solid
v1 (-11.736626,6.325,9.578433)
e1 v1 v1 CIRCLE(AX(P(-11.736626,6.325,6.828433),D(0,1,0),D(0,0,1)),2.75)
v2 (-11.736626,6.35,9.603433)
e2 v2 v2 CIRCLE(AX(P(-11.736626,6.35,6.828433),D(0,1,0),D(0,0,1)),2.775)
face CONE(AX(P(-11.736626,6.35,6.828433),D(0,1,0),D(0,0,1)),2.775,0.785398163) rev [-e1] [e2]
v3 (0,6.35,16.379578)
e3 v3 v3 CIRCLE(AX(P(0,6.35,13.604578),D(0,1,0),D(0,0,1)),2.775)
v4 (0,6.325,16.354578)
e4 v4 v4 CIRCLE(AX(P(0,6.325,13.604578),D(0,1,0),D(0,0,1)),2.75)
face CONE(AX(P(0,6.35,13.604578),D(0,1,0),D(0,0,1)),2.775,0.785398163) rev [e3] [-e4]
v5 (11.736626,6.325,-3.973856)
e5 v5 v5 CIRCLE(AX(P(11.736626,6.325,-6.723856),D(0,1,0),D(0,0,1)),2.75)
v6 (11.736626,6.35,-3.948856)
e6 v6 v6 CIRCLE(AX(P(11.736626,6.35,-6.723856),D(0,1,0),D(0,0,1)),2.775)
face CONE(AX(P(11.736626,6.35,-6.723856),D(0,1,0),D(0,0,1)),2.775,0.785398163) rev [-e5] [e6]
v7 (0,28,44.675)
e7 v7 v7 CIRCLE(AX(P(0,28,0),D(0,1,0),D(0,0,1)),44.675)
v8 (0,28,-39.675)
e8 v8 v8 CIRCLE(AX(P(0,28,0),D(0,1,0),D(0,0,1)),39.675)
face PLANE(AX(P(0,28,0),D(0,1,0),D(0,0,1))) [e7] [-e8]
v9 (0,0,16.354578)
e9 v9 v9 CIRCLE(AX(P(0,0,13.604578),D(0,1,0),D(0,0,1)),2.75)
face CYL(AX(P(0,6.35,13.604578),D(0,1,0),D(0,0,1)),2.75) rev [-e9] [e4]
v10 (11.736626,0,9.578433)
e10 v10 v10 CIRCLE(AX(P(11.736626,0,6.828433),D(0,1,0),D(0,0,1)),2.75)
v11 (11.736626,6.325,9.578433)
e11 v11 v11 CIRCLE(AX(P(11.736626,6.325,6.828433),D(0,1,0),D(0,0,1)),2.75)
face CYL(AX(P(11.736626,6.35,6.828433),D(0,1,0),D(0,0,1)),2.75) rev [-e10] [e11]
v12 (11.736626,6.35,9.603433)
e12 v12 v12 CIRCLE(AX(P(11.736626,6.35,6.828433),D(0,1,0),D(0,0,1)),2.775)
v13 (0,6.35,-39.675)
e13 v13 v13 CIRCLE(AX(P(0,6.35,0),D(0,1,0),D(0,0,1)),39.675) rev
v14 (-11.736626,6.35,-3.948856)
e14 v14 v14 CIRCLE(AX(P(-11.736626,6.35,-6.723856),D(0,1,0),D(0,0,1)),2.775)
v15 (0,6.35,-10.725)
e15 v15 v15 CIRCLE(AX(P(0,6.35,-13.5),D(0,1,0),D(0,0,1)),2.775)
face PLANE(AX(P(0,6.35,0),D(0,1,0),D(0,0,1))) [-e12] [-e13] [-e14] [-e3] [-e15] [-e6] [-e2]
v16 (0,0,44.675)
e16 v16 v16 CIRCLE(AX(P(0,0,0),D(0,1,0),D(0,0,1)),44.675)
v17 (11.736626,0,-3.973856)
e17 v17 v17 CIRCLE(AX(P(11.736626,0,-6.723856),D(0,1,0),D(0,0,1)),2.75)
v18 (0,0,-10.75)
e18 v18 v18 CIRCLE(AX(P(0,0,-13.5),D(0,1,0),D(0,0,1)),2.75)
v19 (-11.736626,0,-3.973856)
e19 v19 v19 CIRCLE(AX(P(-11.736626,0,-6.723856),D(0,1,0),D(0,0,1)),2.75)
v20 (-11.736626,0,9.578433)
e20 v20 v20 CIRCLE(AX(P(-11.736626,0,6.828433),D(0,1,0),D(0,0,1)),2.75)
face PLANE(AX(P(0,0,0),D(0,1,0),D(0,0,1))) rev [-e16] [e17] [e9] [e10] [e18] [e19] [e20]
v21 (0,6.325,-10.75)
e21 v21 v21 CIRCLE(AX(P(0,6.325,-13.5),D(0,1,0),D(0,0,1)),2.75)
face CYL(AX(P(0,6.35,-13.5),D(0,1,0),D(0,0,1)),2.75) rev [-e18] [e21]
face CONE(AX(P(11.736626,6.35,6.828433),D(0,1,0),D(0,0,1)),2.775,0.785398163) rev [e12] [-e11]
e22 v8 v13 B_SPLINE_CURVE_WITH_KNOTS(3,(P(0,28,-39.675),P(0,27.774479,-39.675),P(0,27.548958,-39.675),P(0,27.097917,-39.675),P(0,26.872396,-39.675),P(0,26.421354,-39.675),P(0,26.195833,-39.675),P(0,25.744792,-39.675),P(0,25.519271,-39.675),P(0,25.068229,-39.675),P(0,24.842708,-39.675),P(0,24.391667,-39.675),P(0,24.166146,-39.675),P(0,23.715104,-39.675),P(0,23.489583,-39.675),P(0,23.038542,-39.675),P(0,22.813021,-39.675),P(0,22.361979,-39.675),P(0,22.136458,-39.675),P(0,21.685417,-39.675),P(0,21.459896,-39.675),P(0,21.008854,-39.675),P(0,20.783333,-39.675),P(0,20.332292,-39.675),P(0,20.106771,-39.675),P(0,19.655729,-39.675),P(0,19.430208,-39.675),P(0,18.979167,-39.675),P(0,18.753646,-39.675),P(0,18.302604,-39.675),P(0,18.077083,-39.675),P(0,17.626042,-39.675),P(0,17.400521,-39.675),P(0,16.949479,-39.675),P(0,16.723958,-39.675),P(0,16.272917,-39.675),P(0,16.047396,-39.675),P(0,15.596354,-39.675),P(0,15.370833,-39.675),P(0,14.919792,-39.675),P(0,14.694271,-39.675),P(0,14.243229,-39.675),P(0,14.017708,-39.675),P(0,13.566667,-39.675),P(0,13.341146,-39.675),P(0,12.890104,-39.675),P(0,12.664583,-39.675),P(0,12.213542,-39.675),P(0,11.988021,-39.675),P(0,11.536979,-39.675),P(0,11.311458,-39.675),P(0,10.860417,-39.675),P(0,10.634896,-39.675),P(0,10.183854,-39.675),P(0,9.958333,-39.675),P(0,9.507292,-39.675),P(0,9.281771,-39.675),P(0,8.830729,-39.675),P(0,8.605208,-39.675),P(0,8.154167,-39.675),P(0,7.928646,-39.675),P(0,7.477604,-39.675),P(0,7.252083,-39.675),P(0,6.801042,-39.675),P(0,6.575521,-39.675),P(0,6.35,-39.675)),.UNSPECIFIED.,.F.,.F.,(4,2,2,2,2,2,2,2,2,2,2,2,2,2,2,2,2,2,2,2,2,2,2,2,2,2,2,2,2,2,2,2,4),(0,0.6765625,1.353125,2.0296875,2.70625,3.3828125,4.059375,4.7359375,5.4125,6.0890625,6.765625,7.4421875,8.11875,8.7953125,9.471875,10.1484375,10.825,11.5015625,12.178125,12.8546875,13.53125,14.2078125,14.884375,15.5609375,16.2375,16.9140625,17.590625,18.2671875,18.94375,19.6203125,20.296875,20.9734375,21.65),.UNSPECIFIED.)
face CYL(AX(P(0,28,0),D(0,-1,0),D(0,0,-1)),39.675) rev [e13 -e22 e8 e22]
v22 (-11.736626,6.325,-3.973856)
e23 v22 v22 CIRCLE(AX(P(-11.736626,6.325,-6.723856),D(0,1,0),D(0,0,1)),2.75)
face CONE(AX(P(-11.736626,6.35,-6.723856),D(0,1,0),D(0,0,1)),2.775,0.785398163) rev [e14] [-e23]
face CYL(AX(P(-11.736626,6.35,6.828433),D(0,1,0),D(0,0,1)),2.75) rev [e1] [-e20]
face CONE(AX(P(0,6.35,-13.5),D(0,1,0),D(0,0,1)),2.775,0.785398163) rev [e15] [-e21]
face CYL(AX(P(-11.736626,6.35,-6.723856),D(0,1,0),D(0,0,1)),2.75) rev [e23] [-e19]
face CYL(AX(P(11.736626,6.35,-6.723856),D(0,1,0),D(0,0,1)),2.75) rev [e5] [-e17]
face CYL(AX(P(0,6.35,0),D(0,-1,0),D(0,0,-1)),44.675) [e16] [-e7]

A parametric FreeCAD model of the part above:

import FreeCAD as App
import Part
import Sketcher

doc = App.newDocument("Part")
params = doc.addObject("Spreadsheet::Sheet", "Params")
for row, (alias, value) in enumerate([
    ("sketch1_diameter", "89.35 mm"),
    ("pad1_length", "6.35 mm"),
    ("sketch2_diameter", "5.5 mm"),
    ("hole_diameter", "5.5 mm"),
    ("hole_csink_diameter", "5.55 mm"),
    ("sketch3_diameter", "89.35 mm"),
    ("sketch3_diameter2", "79.35 mm"),
    ("pad2_length", "21.65 mm"),
], start=1):
    params.set(f"A{row}", alias)
    params.set(f"B{row}", "=" + value)
    params.setAlias(f"B{row}", alias)

body = doc.addObject("PartDesign::Body", "Body")

# Sketch on XZ plane
sketch1 = body.newObject("Sketcher::SketchObject", "Sketch")
sketch1.AttachmentSupport = (doc.getObject("XZ_Plane"), [""])
sketch1.MapMode = "FlatFace"
sketch1.addGeometry(Part.Circle(App.Vector(0, 0, 0), App.Vector(0, 0, 1), 45), False)
sketch1.addConstraint(Sketcher.Constraint("Coincident", 0, 3, -1, 1))
sketch1.addConstraint(Sketcher.Constraint("Diameter", 0, 89.35))
sketch1.setExpression("Constraints[1]", "Params.sketch1_diameter")
pad1 = body.newObject("PartDesign::Pad", "Pad")
pad1.Profile = sketch1
pad1.setExpression("Length", "Params.pad1_length")
pad1.Reversed = True

# Sketch on XZ plane
sketch2 = body.newObject("Sketcher::SketchObject", "Sketch001")
sketch2.AttachmentSupport = (doc.getObject("XZ_Plane"), [""])
sketch2.MapMode = "FlatFace"
sketch2.AttachmentOffset = App.Placement(App.Vector(0, 0, -6.35), App.Rotation())
sketch2.addGeometry(Part.Circle(App.Vector(0, -13.5, 0), App.Vector(0, 0, 1), 2.8), False)
sketch2.addConstraint(Sketcher.Constraint("PointOnObject", 0, 3, -2))
sketch2.addConstraint(Sketcher.Constraint("Diameter", 0, 5.5))
sketch2.addConstraint(Sketcher.Constraint("DistanceY", 0, 3, -1, 1, 13.5))
sketch2.setExpression("Constraints[1]", "Params.sketch2_diameter")
doc.recompute()
hole = body.newObject("PartDesign::Hole", "Hole")
hole.Profile = sketch2
hole.ThreadType = "None"
hole.setExpression("Diameter", "Params.hole_diameter")
hole.DepthType = "ThroughAll"
hole.HoleCutType = "Countersink"
hole.setExpression("HoleCutDiameter", "Params.hole_csink_diameter")
hole.HoleCutCountersinkAngle = 90
hole.Reversed = True
doc.recompute()

datumline = body.newObject("PartDesign::Line", "DatumLine")
datumline.Placement = App.Placement(App.Vector(0, 0, 0.052289), App.Rotation(App.Vector(0, 0, 1), App.Vector(0, 1, 0)))
polarpattern = body.newObject("PartDesign::PolarPattern", "PolarPattern")
polarpattern.Originals = [hole]
polarpattern.Axis = (datumline, [""])
polarpattern.Angle = 360
polarpattern.Occurrences = 6
body.Tip = polarpattern

# Sketch on XZ plane
sketch3 = body.newObject("Sketcher::SketchObject", "Sketch002")
sketch3.AttachmentSupport = (doc.getObject("XZ_Plane"), [""])
sketch3.MapMode = "FlatFace"
sketch3.AttachmentOffset = App.Placement(App.Vector(0, 0, -6.35), App.Rotation())
sketch3.addGeometry(Part.Circle(App.Vector(0, 0, 0), App.Vector(0, 0, 1), 45), False)
sketch3.addGeometry(Part.Circle(App.Vector(0, 0, 0), App.Vector(0, 0, 1), 40), False)
sketch3.addConstraint(Sketcher.Constraint("Coincident", 0, 3, -1, 1))
sketch3.addConstraint(Sketcher.Constraint("Coincident", 1, 3, -1, 1))
sketch3.addConstraint(Sketcher.Constraint("Diameter", 0, 89.35))
sketch3.addConstraint(Sketcher.Constraint("Diameter", 1, 79.35))
sketch3.setExpression("Constraints[2]", "Params.sketch3_diameter")
sketch3.setExpression("Constraints[3]", "Params.sketch3_diameter2")
pad2 = body.newObject("PartDesign::Pad", "Pad001")
pad2.Profile = sketch3
pad2.setExpression("Length", "Params.pad2_length")
pad2.Reversed = True

doc.recompute()
